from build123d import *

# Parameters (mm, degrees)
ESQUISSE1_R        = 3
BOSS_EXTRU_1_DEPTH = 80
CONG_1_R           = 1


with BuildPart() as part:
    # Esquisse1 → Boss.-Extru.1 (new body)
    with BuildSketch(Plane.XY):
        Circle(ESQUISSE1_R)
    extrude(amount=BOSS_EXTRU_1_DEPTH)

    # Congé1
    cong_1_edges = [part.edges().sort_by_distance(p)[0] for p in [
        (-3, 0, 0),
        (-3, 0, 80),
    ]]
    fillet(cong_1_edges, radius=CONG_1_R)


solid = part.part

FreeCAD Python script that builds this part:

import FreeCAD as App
import Part
import Sketcher
from FreeCAD import Vector
Q = App.Units.Quantity


def edges_at(feature, points):
    """Names of the edges that pass closest to the given points."""
    edges = feature.Shape.Edges
    near = lambda p: min(range(len(edges)), key=lambda i: edges[i].distToShape(Part.Vertex(*p))[0])
    return sorted({f"Edge{near(p) + 1}" for p in points})

doc = App.newDocument("Part")
body = doc.addObject("PartDesign::Body", "Body")

# Sketch on XY plane
sketch1 = body.newObject("Sketcher::SketchObject", "Sketch")
sketch1.AttachmentSupport = (doc.getObject("XY_Plane"), [""])
sketch1.MapMode = "FlatFace"
sketch1.addGeometry(Part.Circle(Vector(0, 0, 0), Vector(0, 0, 1), 3), False)
sketch1.addConstraint([
    Sketcher.Constraint("Coincident", 0, 3, -1, 1),
    Sketcher.Constraint("Diameter", 0, Q("6 mm")),
])
pad1 = body.newObject("PartDesign::Pad", "Pad")
pad1.Profile = sketch1
pad1.Length = 80
doc.recompute()

fillet = body.newObject("PartDesign::Fillet", "Fillet")
fillet.Base = (pad1, edges_at(pad1, [(-3, 0, 0), (-3, 0, 80)]))
fillet.Radius = 1

doc.recompute()
